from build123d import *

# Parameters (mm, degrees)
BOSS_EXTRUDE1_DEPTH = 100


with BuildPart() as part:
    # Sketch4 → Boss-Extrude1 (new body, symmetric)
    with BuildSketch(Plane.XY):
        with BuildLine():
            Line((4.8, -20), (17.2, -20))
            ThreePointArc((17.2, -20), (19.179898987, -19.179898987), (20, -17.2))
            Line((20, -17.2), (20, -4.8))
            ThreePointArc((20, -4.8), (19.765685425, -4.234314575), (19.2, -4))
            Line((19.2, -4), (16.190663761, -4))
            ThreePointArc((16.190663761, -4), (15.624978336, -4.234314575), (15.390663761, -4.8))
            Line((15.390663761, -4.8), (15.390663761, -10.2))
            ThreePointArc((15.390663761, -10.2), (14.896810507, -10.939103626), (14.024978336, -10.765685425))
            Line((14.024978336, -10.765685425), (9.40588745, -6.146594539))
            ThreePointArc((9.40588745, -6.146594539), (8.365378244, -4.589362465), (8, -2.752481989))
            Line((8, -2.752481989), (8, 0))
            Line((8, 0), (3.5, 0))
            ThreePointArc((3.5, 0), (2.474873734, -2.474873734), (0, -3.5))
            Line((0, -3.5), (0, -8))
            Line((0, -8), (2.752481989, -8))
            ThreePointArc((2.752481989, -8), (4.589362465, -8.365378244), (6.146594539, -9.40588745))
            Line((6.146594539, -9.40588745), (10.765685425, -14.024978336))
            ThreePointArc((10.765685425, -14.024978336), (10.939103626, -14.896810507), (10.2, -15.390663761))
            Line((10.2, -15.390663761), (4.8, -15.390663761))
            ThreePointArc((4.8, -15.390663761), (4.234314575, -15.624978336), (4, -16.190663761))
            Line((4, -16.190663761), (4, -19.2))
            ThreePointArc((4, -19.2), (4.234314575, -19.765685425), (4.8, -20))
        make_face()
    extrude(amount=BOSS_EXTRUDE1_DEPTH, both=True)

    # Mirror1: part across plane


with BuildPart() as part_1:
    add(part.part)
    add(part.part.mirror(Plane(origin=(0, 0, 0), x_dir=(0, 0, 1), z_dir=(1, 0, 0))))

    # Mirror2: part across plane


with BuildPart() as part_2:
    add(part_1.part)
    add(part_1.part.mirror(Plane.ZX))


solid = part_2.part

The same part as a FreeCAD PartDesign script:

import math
import FreeCAD as App
import Part
import Sketcher

doc = App.newDocument("Part")
params = doc.addObject("Spreadsheet::Sheet", "Params")
for row, (alias, value) in enumerate([
    ("sketch1_radius", "2.8 mm"),
    ("sketch1_radius2", "0.8 mm"),
    ("sketch1_radius3", "4.8 mm"),
    ("sketch1_radius4", "3.5 mm"),
    ("sketch1_width", "12.4 mm"),
    ("pad1_length", "200 mm"),
], start=1):
    params.set(f"A{row}", alias)
    params.set(f"B{row}", "=" + value)
    params.setAlias(f"B{row}", alias)

body = doc.addObject("PartDesign::Body", "Body")

# Sketch on XY plane
sketch1 = doc.addObject("Sketcher::SketchObject", "Sketch")
body.addObject(sketch1)
sketch1.AttachmentSupport = (doc.XY_Plane, [""])
sketch1.MapMode = "FlatFace"
sketch1.addGeometry([
    Part.LineSegment(App.Vector(4.8, -20, 0), App.Vector(17.2, -20, 0)),  # 0
    Part.ArcOfCircle(Part.Circle(App.Vector(17.2, -17.2, 0), App.Vector(0, 0, 1), 2.8), math.radians(-90), math.radians(0)),  # 1
    Part.LineSegment(App.Vector(20, -17.2, 0), App.Vector(20, -4.8, 0)),  # 2
    Part.ArcOfCircle(Part.Circle(App.Vector(19.2, -4.8, 0), App.Vector(0, 0, 1), 0.8), math.radians(0), math.radians(90)),  # 3
    Part.LineSegment(App.Vector(19.2, -4, 0), App.Vector(16.2, -4, 0)),  # 4
    Part.ArcOfCircle(Part.Circle(App.Vector(16.2, -4.8, 0), App.Vector(0, 0, 1), 0.8), math.radians(90), math.radians(180)),  # 5
    Part.LineSegment(App.Vector(15.4, -4.8, 0), App.Vector(15.4, -10.2, 0)),  # 6
    Part.ArcOfCircle(Part.Circle(App.Vector(14.6, -10.2, 0), App.Vector(0, 0, 1), 0.8), math.radians(-135), math.radians(0)),  # 7
    Part.LineSegment(App.Vector(14, -10.8, 0), App.Vector(9.4, -6.1, 0)),  # 8
    Part.ArcOfCircle(Part.Circle(App.Vector(12.8, -2.8, 0), App.Vector(0, 0, 1), 4.8), math.radians(180), math.radians(225)),  # 9
    Part.LineSegment(App.Vector(8, -2.8, 0), App.Vector(8, 0, 0)),  # 10
    Part.LineSegment(App.Vector(8, 0, 0), App.Vector(3.5, 0, 0)),  # 11
    Part.ArcOfCircle(Part.Circle(App.Vector(0, 0, 0), App.Vector(0, 0, 1), 3.5), math.radians(-90), math.radians(0)),  # 12
    Part.LineSegment(App.Vector(0, -3.5, 0), App.Vector(0, -8, 0)),  # 13
    Part.LineSegment(App.Vector(0, -8, 0), App.Vector(2.8, -8, 0)),  # 14
    Part.ArcOfCircle(Part.Circle(App.Vector(2.8, -12.8, 0), App.Vector(0, 0, 1), 4.8), math.radians(45), math.radians(90)),  # 15
    Part.LineSegment(App.Vector(6.1, -9.4, 0), App.Vector(10.8, -14, 0)),  # 16
    Part.ArcOfCircle(Part.Circle(App.Vector(10.2, -14.6, 0), App.Vector(0, 0, 1), 0.8), math.radians(-90), math.radians(45)),  # 17
    Part.LineSegment(App.Vector(10.2, -15.4, 0), App.Vector(4.8, -15.4, 0)),  # 18
    Part.ArcOfCircle(Part.Circle(App.Vector(4.8, -16.2, 0), App.Vector(0, 0, 1), 0.8), math.radians(90), math.radians(180)),  # 19
    Part.LineSegment(App.Vector(4, -16.2, 0), App.Vector(4, -19.2, 0)),  # 20
    Part.ArcOfCircle(Part.Circle(App.Vector(4.8, -19.2, 0), App.Vector(0, 0, 1), 0.8), math.radians(180), math.radians(270)),  # 21
], False)
sketch1.addConstraint([
    Sketcher.Constraint("Tangent", 0, 2, 1, 1),
    Sketcher.Constraint("Tangent", 1, 2, 2, 1),
    Sketcher.Constraint("Tangent", 2, 2, 3, 1),
    Sketcher.Constraint("Tangent", 3, 2, 4, 1),
    Sketcher.Constraint("Tangent", 4, 2, 5, 1),
    Sketcher.Constraint("Tangent", 5, 2, 6, 1),
    Sketcher.Constraint("Tangent", 6, 2, 7, 2),
    Sketcher.Constraint("Tangent", 7, 1, 8, 1),
    Sketcher.Constraint("Tangent", 8, 2, 9, 2),
    Sketcher.Constraint("Tangent", 9, 1, 10, 1),
    Sketcher.Constraint("Coincident", 10, 2, 11, 1),
    Sketcher.Constraint("Coincident", 11, 2, 12, 2),
    Sketcher.Constraint("Coincident", 12, 1, 13, 1),
    Sketcher.Constraint("Coincident", 13, 2, 14, 1),
    Sketcher.Constraint("Tangent", 14, 2, 15, 2),
    Sketcher.Constraint("Tangent", 15, 1, 16, 1),
    Sketcher.Constraint("Tangent", 16, 2, 17, 2),
    Sketcher.Constraint("Tangent", 17, 1, 18, 1),
    Sketcher.Constraint("Tangent", 18, 2, 19, 1),
    Sketcher.Constraint("Tangent", 19, 2, 20, 1),
    Sketcher.Constraint("Tangent", 20, 2, 21, 1),
    Sketcher.Constraint("Tangent", 21, 2, 0, 1),
    Sketcher.Constraint("Horizontal", 0),
    Sketcher.Constraint("Vertical", 2),
    Sketcher.Constraint("Horizontal", 4),
    Sketcher.Constraint("Vertical", 6),
    Sketcher.Constraint("Vertical", 10),
    Sketcher.Constraint("Horizontal", 11),
    Sketcher.Constraint("Vertical", 13),
    Sketcher.Constraint("Horizontal", 14),
    Sketcher.Constraint("Horizontal", 18),
    Sketcher.Constraint("Vertical", 20),
    Sketcher.Constraint("Coincident", 12, 3, -1, 1),
    Sketcher.Constraint("Equal", 3, 5),
    Sketcher.Constraint("Equal", 5, 7),
    Sketcher.Constraint("Equal", 9, 15),
    Sketcher.Constraint("Equal", 7, 17),
    Sketcher.Constraint("Equal", 17, 19),
    Sketcher.Constraint("Equal", 19, 21),
    Sketcher.Constraint("PointOnObject", 10, 2, -1),
    Sketcher.Constraint("PointOnObject", 12, 1, -2),
    Sketcher.Constraint("Parallel", 8, 16),
    Sketcher.Constraint("Equal", 0, 2),
    Sketcher.Constraint("Equal", 18, 6),
    Sketcher.Constraint("Equal", 14, 10),
    Sketcher.Constraint("Equal", 11, 13),
    Sketcher.Constraint("Equal", 4, 20),
    Sketcher.Constraint("Equal", 8, 16),
    Sketcher.Constraint("Radius", 1, 2.8),
    Sketcher.Constraint("Radius", 3, 0.8),
    Sketcher.Constraint("Radius", 9, 4.8),
    Sketcher.Constraint("Radius", 12, 3.5),
    Sketcher.Constraint("DistanceX", 0, 1, 0, 2, 12.4),
    Sketcher.Constraint("DistanceX", 11, 2, 11, 1, 4.5),
    Sketcher.Constraint("DistanceX", 18, 2, 18, 1, 5.4),
    Sketcher.Constraint("DistanceY", 0, 2, -1, 1, 20.0),
    Sketcher.Constraint("DistanceX", 14, 1, 14, 2, 2.752482),
])
sketch1.setExpression("Constraints[48]", "Params.sketch1_radius")
sketch1.setExpression("Constraints[49]", "Params.sketch1_radius2")
sketch1.setExpression("Constraints[50]", "Params.sketch1_radius3")
sketch1.setExpression("Constraints[51]", "Params.sketch1_radius4")
sketch1.setExpression("Constraints[52]", "Params.sketch1_width")
pad1 = doc.addObject("PartDesign::Pad", "Pad")
body.addObject(pad1)
pad1.Profile = sketch1
pad1.setExpression("Length", "Params.pad1_length")
pad1.Midplane = True
body2 = doc.addObject("PartDesign::Body", "Body001")
doc.recompute()

body2.BaseFeature = body
doc.recompute()

mirroring = doc.addObject("Part::Mirroring", "Mirroring")
mirroring.Source = body
mirroring.Base = App.Vector(0, 0, 0)
mirroring.Normal = App.Vector(1, 0, 0)
body3 = doc.addObject("PartDesign::Body", "Body002")
body3.BaseFeature = mirroring
boolean = doc.addObject("PartDesign::Boolean", "Boolean")
body2.addObject(boolean)
boolean.Type = "Fuse"
boolean.addObjects([body3])
doc.recompute()
body4 = doc.addObject("PartDesign::Body", "Body003")
doc.recompute()

body4.BaseFeature = body2
doc.recompute()

mirroring2 = doc.addObject("Part::Mirroring", "Mirroring001")
mirroring2.Source = body2
mirroring2.Base = App.Vector(0, 0, 0)
mirroring2.Normal = App.Vector(0, 1, 0)
body5 = doc.addObject("PartDesign::Body", "Body004")
body5.BaseFeature = mirroring2
boolean2 = doc.addObject("PartDesign::Boolean", "Boolean001")
body4.addObject(boolean2)
boolean2.Type = "Fuse"
boolean2.addObjects([body5])
doc.recompute()
mirroring.Visibility = False
mirroring2.Visibility = False

doc.recompute()
